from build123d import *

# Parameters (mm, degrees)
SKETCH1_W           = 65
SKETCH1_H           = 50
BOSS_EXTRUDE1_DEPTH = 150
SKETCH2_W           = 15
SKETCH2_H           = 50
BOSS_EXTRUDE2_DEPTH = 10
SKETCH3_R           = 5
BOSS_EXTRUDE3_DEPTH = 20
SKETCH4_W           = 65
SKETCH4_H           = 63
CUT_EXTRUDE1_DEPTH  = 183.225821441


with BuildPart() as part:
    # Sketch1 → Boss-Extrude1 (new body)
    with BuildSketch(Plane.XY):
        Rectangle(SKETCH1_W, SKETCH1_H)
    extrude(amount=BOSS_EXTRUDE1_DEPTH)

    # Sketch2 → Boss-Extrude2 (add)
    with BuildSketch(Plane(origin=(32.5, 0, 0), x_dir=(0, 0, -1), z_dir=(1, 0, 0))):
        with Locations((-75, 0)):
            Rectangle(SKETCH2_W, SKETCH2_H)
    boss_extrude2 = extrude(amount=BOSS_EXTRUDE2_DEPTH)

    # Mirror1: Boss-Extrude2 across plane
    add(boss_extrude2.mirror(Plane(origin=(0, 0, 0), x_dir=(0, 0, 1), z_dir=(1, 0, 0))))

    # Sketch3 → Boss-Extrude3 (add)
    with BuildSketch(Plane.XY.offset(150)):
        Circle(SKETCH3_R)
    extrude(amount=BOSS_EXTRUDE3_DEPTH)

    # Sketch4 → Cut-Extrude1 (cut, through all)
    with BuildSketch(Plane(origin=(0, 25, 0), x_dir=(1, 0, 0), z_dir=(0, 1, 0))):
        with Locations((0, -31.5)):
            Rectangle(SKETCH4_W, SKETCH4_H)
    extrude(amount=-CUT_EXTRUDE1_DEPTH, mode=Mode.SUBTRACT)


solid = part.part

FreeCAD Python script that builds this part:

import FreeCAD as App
import Part
import Sketcher
from FreeCAD import Vector
Q = App.Units.Quantity


def add_polygon(sketch, points):
    """Adds a closed chain of lines whose ends are joined by coincident constraints."""
    first, n = sketch.GeometryCount, len(points)
    for a, b in zip(points, points[1:] + points[:1]):
        sketch.addGeometry(Part.LineSegment(App.Vector(*a, 0), App.Vector(*b, 0)), False)
    for i in range(n):
        sketch.addConstraint(Sketcher.Constraint("Coincident", first + i, 2, first + (i + 1) % n, 1))

doc = App.newDocument("Part")
body = doc.addObject("PartDesign::Body", "Body")

# Sketch on XY plane
sketch1 = body.newObject("Sketcher::SketchObject", "Sketch")
sketch1.AttachmentSupport = (doc.getObject("XY_Plane"), [""])
sketch1.MapMode = "FlatFace"
add_polygon(sketch1, [(-32, 25), (-32, -25), (32, -25), (32, 25)])  # lines 0-3
sketch1.addConstraint(Sketcher.Constraint("Vertical", 0))
sketch1.addConstraint(Sketcher.Constraint("Horizontal", 1))
sketch1.addConstraint(Sketcher.Constraint("Vertical", 2))
sketch1.addConstraint(Sketcher.Constraint("Horizontal", 3))
sketch1.addConstraint(Sketcher.Constraint("Symmetric", 0, 2, 2, 2, -1, 1))
sketch1.addConstraint(Sketcher.Constraint("DistanceX", 1, 1, 1, 2, Q("65 mm")))
sketch1.addConstraint(Sketcher.Constraint("DistanceY", 0, 2, 0, 1, Q("50 mm")))
pad1 = body.newObject("PartDesign::Pad", "Pad")
pad1.Profile = sketch1
pad1.Length = 150

# Sketch on YZ plane
sketch2 = body.newObject("Sketcher::SketchObject", "Sketch001")
sketch2.AttachmentSupport = (doc.getObject("YZ_Plane"), [""])
sketch2.MapMode = "FlatFace"
sketch2.AttachmentOffset = App.Placement(Vector(0, 0, 32.5), App.Rotation())
add_polygon(sketch2, [(25, 82), (-25, 82), (-25, 68), (25, 68)])  # lines 0-3
sketch2.addConstraint(Sketcher.Constraint("Horizontal", 0))
sketch2.addConstraint(Sketcher.Constraint("Vertical", 1))
sketch2.addConstraint(Sketcher.Constraint("Horizontal", 2))
sketch2.addConstraint(Sketcher.Constraint("Vertical", 3))
sketch2.addConstraint(Sketcher.Constraint("DistanceX", 0, 2, 0, 1, Q("50 mm")))
sketch2.addConstraint(Sketcher.Constraint("DistanceY", 1, 2, 1, 1, Q("15 mm")))
sketch2.addConstraint(Sketcher.Constraint("DistanceX", 0, 2, -1, 1, Q("25 mm")))
sketch2.addConstraint(Sketcher.Constraint("DistanceY", -1, 1, 0, 2, Q("82.5 mm")))
pad2 = body.newObject("PartDesign::Pad", "Pad001")
pad2.Profile = sketch2
pad2.Length = 10
doc.recompute()

mirrored = body.newObject("PartDesign::Mirrored", "Mirrored")
mirrored.Originals = [pad2]
mirrored.MirrorPlane = (doc.getObject("YZ_Plane"), [""])
body.Tip = mirrored

# Sketch on XY plane
sketch3 = body.newObject("Sketcher::SketchObject", "Sketch002")
sketch3.AttachmentSupport = (doc.getObject("XY_Plane"), [""])
sketch3.MapMode = "FlatFace"
sketch3.AttachmentOffset = App.Placement(Vector(0, 0, 150), App.Rotation())
sketch3.addGeometry(Part.Circle(Vector(0, 0, 0), Vector(0, 0, 1), 5), False)
sketch3.addConstraint(Sketcher.Constraint("Coincident", 0, 3, -1, 1))
sketch3.addConstraint(Sketcher.Constraint("Diameter", 0, Q("10 mm")))
pad3 = body.newObject("PartDesign::Pad", "Pad002")
pad3.Profile = sketch3
pad3.Length = 20

# Sketch on XZ plane
sketch4 = body.newObject("Sketcher::SketchObject", "Sketch003")
sketch4.AttachmentSupport = (doc.getObject("XZ_Plane"), [""])
sketch4.MapMode = "FlatFace"
sketch4.AttachmentOffset = App.Placement(Vector(0, 0, -25), App.Rotation())
add_polygon(sketch4, [(-32, 0), (-32, 63), (32, 63), (32, 0)])  # lines 0-3
sketch4.addConstraint(Sketcher.Constraint("Vertical", 0))
sketch4.addConstraint(Sketcher.Constraint("Horizontal", 1))
sketch4.addConstraint(Sketcher.Constraint("Vertical", 2))
sketch4.addConstraint(Sketcher.Constraint("Horizontal", 3))
sketch4.addConstraint(Sketcher.Constraint("Symmetric", 2, 2, 3, 2, -1, 1))
sketch4.addConstraint(Sketcher.Constraint("DistanceX", 1, 1, 1, 2, Q("65 mm")))
sketch4.addConstraint(Sketcher.Constraint("DistanceY", 0, 1, 0, 2, Q("63 mm")))
pocket1 = body.newObject("PartDesign::Pocket", "Pocket")
pocket1.Profile = sketch4
pocket1.Type = "ThroughAll"
pocket1.Reversed = True

doc.recompute()
